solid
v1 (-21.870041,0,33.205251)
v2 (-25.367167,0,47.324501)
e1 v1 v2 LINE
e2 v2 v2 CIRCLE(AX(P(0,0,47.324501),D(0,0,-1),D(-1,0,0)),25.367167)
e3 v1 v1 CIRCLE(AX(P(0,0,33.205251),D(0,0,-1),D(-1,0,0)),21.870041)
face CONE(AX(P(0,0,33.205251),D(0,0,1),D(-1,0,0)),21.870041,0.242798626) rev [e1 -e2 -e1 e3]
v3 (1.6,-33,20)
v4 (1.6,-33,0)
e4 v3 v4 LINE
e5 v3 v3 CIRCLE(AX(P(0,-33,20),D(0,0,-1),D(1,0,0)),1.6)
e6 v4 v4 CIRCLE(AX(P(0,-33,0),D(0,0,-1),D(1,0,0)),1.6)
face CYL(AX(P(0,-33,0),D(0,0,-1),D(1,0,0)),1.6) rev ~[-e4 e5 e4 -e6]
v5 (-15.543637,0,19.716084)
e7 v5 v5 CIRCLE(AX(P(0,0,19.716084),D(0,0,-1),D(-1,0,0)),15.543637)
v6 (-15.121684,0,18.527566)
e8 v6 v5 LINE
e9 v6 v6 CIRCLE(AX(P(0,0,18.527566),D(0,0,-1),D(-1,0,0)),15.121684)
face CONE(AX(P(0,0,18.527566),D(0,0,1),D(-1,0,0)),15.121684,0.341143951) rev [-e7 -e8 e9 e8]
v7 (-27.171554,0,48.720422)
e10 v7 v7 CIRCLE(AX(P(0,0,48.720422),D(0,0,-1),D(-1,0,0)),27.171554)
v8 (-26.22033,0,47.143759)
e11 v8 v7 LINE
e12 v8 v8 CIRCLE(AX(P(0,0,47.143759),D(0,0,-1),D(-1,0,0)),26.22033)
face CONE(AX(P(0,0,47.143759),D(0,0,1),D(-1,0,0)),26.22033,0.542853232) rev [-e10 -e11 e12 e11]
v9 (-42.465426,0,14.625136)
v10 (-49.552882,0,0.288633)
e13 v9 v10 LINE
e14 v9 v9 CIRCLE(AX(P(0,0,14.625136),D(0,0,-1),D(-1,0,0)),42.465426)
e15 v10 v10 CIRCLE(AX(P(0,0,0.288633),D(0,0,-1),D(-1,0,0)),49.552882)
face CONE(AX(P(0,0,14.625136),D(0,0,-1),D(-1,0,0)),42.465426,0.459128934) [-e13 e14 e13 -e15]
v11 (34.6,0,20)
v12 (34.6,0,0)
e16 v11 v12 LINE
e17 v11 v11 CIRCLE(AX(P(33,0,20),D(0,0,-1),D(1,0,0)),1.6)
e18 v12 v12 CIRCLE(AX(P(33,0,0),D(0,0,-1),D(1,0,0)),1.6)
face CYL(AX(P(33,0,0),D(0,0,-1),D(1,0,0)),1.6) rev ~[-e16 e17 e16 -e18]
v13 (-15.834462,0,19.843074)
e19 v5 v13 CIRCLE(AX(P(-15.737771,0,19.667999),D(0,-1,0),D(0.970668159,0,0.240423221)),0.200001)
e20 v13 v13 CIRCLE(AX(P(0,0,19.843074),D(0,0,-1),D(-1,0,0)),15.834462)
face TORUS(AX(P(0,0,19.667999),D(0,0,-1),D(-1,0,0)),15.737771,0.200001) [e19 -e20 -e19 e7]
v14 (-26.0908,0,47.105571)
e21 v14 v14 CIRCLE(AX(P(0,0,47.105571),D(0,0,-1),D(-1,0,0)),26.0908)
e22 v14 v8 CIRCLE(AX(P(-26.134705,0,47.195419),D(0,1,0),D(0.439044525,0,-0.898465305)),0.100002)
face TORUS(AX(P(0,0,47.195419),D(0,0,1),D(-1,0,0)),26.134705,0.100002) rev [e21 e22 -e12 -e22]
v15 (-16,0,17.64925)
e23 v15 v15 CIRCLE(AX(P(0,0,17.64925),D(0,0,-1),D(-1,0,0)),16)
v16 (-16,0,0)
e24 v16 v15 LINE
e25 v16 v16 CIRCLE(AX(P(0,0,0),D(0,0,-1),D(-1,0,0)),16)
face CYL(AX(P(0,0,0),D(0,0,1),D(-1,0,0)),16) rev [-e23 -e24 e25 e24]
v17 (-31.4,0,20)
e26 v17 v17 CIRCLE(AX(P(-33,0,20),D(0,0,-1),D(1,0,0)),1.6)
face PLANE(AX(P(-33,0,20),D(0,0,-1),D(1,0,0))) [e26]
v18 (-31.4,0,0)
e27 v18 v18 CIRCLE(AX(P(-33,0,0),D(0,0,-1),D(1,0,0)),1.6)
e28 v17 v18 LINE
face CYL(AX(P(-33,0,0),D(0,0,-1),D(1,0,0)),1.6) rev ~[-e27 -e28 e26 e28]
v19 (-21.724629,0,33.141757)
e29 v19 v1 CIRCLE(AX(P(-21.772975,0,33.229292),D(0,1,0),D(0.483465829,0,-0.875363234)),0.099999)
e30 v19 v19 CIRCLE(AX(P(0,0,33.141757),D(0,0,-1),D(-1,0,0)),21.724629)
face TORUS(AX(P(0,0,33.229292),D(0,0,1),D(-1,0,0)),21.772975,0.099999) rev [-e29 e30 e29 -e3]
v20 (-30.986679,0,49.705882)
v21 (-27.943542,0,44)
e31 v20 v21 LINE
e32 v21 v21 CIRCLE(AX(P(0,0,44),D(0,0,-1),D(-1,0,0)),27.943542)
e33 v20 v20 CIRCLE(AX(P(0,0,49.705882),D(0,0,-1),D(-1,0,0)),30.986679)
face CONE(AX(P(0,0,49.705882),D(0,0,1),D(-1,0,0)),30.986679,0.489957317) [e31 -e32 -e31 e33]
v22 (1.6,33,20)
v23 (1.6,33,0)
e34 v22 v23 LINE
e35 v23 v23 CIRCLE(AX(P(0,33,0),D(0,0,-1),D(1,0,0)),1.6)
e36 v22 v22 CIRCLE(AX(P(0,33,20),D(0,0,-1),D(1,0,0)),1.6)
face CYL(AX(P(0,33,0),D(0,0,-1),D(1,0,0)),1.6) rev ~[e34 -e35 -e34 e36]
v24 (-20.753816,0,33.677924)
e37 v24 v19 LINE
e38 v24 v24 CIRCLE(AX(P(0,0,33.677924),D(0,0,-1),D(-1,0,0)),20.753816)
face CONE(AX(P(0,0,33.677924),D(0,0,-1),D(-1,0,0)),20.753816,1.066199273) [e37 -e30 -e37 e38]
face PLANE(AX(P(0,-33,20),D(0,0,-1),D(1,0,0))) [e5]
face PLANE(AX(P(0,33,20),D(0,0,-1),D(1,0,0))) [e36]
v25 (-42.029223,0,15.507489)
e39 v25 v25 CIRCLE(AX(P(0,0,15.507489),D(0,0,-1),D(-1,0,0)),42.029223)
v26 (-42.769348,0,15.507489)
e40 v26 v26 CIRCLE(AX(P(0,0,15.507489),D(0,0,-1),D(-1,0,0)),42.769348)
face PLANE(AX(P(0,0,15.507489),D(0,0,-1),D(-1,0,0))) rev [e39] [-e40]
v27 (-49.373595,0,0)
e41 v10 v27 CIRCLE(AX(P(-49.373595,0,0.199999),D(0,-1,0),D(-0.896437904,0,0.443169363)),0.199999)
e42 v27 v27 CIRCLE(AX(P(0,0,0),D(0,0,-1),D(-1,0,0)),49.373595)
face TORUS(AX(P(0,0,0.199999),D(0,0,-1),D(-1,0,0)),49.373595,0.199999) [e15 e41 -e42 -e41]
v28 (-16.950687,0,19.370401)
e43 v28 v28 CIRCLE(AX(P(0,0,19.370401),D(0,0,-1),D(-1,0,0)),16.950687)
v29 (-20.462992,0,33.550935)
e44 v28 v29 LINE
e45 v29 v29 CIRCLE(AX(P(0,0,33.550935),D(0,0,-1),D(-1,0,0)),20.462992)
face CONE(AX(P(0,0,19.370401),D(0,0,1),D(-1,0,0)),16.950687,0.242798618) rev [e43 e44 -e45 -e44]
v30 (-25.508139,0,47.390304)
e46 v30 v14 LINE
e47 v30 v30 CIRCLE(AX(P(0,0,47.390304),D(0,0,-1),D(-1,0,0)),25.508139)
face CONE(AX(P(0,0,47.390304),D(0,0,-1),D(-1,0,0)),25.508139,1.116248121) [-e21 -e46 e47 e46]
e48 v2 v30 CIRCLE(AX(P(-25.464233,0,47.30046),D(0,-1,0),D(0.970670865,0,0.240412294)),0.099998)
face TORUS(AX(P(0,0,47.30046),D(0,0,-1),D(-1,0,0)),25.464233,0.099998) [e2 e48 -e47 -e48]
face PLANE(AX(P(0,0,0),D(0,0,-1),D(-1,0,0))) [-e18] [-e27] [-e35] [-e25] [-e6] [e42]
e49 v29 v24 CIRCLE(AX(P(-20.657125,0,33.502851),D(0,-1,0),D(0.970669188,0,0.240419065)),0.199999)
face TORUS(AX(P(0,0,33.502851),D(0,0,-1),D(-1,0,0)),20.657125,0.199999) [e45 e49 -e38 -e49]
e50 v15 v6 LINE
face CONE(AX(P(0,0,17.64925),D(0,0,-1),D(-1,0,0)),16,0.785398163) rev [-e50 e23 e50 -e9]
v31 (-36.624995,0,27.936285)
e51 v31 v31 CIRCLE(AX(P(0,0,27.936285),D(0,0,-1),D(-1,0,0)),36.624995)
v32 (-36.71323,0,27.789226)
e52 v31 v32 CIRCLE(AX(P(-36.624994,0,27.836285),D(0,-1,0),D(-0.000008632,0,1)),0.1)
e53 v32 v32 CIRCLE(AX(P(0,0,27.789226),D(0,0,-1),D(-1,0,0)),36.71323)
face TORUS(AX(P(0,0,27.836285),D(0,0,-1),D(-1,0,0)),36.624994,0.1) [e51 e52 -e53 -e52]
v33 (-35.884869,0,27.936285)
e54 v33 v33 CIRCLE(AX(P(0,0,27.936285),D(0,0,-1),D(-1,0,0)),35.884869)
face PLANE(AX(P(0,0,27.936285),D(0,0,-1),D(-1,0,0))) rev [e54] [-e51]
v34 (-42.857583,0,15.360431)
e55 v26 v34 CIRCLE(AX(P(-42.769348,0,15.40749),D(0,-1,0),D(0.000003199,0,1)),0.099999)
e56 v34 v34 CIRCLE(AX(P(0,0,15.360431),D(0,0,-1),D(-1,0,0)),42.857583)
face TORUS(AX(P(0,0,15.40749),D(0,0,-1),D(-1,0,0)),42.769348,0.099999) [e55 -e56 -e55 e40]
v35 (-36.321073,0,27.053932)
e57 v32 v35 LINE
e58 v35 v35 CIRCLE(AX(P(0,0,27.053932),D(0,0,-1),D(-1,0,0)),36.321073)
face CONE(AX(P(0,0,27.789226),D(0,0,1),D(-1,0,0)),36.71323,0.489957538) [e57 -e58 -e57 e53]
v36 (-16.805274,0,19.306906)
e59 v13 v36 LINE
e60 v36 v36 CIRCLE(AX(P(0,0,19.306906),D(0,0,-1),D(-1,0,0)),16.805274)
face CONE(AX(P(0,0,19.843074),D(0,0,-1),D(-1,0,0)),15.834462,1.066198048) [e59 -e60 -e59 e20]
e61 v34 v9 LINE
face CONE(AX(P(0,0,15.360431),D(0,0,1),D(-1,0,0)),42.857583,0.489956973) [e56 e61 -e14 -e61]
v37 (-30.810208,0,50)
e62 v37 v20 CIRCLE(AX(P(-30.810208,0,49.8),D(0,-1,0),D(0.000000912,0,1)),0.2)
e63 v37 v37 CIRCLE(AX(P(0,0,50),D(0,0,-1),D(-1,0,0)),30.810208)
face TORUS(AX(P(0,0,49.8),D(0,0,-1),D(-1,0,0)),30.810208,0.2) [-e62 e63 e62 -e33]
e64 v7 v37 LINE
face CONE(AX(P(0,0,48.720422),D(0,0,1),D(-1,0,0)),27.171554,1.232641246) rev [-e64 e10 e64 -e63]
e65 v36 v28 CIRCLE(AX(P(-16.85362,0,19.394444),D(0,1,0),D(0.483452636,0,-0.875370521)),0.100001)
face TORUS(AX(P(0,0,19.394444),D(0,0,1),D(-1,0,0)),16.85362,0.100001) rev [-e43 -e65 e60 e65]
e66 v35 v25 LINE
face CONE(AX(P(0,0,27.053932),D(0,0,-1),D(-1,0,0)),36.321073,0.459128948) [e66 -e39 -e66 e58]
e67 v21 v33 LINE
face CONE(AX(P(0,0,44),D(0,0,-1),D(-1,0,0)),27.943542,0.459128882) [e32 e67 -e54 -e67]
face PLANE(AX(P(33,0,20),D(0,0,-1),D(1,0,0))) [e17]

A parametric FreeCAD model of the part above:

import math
import FreeCAD as App
import Part
import Sketcher
from FreeCAD import Vector
Q = App.Units.Quantity

doc = App.newDocument("Part")
body = doc.addObject("PartDesign::Body", "Body")

# Sketch on XZ plane
sketch1 = body.newObject("Sketcher::SketchObject", "Sketch")
sketch1.AttachmentSupport = (doc.getObject("XZ_Plane"), [""])
sketch1.MapMode = "FlatFace"
sketch1.addGeometry([
    Part.ArcOfCircle(Part.Circle(Vector(-30.810208, 49.8, 0), Vector(0, 0, 1), 0.2), math.radians(89.999948), math.radians(208.072482)),  # 0
    Part.LineSegment(Vector(-30.986679, 49.705882, 0), Vector(-27.943542, 44, 0)),  # 1
    Part.LineSegment(Vector(-27.943542, 44, 0), Vector(-35.884869, 27.936285, 0)),  # 2
    Part.LineSegment(Vector(-35.884869, 27.936285, 0), Vector(-36.624995, 27.936285, 0)),  # 3
    Part.ArcOfCircle(Part.Circle(Vector(-36.624994, 27.836285, 0), Vector(0, 0, 1), 0.1), math.radians(90.000494), math.radians(208.072222)),  # 4
    Part.LineSegment(Vector(-36.71323, 27.789226, 0), Vector(-36.321073, 27.053932, 0)),  # 5
    Part.LineSegment(Vector(-36.321073, 27.053932, 0), Vector(-42.029223, 15.507489, 0)),  # 6
    Part.LineSegment(Vector(-42.029223, 15.507489, 0), Vector(-42.769348, 15.507489, 0)),  # 7
    Part.ArcOfCircle(Part.Circle(Vector(-42.769348, 15.40749, 0), Vector(0, 0, 1), 0.099999), math.radians(89.999817), math.radians(208.072556)),  # 8
    Part.LineSegment(Vector(-42.857583, 15.360431, 0), Vector(-42.465426, 14.625136, 0)),  # 9
    Part.LineSegment(Vector(-42.465426, 14.625136, 0), Vector(-49.552882, 0.288633, 0)),  # 10
    Part.ArcOfCircle(Part.Circle(Vector(-49.373595, 0.199999, 0), Vector(0, 0, 1), 0.199999), math.radians(153.693725), math.radians(269.999989)),  # 11
    Part.LineSegment(Vector(-49.373595, 0, 0), Vector(-16, 0, 0)),  # 12
    Part.LineSegment(Vector(-16, 0, 0), Vector(-16, 17.64925, 0)),  # 13
    Part.LineSegment(Vector(-16, 17.64925, 0), Vector(-15.121684, 18.527566, 0)),  # 14
    Part.LineSegment(Vector(-15.121684, 18.527566, 0), Vector(-15.543637, 19.716084, 0)),  # 15
    Part.ArcOfCircle(Part.Circle(Vector(-15.737771, 19.667999, 0), Vector(0, 0, 1), 0.200001), math.radians(13.91152), math.radians(118.911086)),  # 16
    Part.LineSegment(Vector(-15.834462, 19.843074, 0), Vector(-16.805274, 19.306906, 0)),  # 17
    Part.ArcOfCircle(Part.Circle(Vector(-16.85362, 19.394444, 0), Vector(0, 0, 1), 0.100001), math.radians(-166.088392), math.radians(-61.088857)),  # 18
    Part.LineSegment(Vector(-16.950687, 19.370401, 0), Vector(-20.462992, 33.550935, 0)),  # 19
    Part.ArcOfCircle(Part.Circle(Vector(-20.657125, 33.502851, 0), Vector(0, 0, 1), 0.199999), math.radians(13.911275), math.radians(118.911518)),  # 20
    Part.LineSegment(Vector(-20.753816, 33.677924, 0), Vector(-21.724629, 33.141757, 0)),  # 21
    Part.ArcOfCircle(Part.Circle(Vector(-21.772975, 33.229292, 0), Vector(0, 0, 1), 0.099999), math.radians(-166.088883), math.radians(-61.087993)),  # 22
    Part.LineSegment(Vector(-21.870041, 33.205251, 0), Vector(-25.367167, 47.324501, 0)),  # 23
    Part.ArcOfCircle(Part.Circle(Vector(-25.464233, 47.30046, 0), Vector(0, 0, 1), 0.099998), math.radians(13.910876), math.radians(116.044613)),  # 24
    Part.LineSegment(Vector(-25.508139, 47.390304, 0), Vector(-26.0908, 47.105571, 0)),  # 25
    Part.ArcOfCircle(Part.Circle(Vector(-26.134705, 47.195419, 0), Vector(0, 0, 1), 0.100002), math.radians(-148.896048), math.radians(-63.957066)),  # 26
    Part.LineSegment(Vector(-26.22033, 47.143759, 0), Vector(-27.171554, 48.720422, 0)),  # 27
    Part.LineSegment(Vector(-27.171554, 48.720422, 0), Vector(-30.810208, 50, 0)),  # 28
], False)
sketch1.addConstraint([
    Sketcher.Constraint("Coincident", 0, 2, 1, 1),
    Sketcher.Constraint("Coincident", 1, 2, 2, 1),
    Sketcher.Constraint("Coincident", 2, 2, 3, 1),
    Sketcher.Constraint("Coincident", 3, 2, 4, 1),
    Sketcher.Constraint("Coincident", 4, 2, 5, 1),
    Sketcher.Constraint("Coincident", 5, 2, 6, 1),
    Sketcher.Constraint("Coincident", 6, 2, 7, 1),
    Sketcher.Constraint("Coincident", 7, 2, 8, 1),
    Sketcher.Constraint("Coincident", 8, 2, 9, 1),
    Sketcher.Constraint("Coincident", 9, 2, 10, 1),
    Sketcher.Constraint("Coincident", 10, 2, 11, 1),
    Sketcher.Constraint("Coincident", 11, 2, 12, 1),
    Sketcher.Constraint("Coincident", 12, 2, 13, 1),
    Sketcher.Constraint("Coincident", 13, 2, 14, 1),
    Sketcher.Constraint("Coincident", 14, 2, 15, 1),
    Sketcher.Constraint("Coincident", 15, 2, 16, 1),
    Sketcher.Constraint("Coincident", 16, 2, 17, 1),
    Sketcher.Constraint("Coincident", 17, 2, 18, 2),
    Sketcher.Constraint("Coincident", 18, 1, 19, 1),
    Sketcher.Constraint("Coincident", 19, 2, 20, 1),
    Sketcher.Constraint("Coincident", 20, 2, 21, 1),
    Sketcher.Constraint("Coincident", 21, 2, 22, 2),
    Sketcher.Constraint("Coincident", 22, 1, 23, 1),
    Sketcher.Constraint("Coincident", 23, 2, 24, 1),
    Sketcher.Constraint("Coincident", 24, 2, 25, 1),
    Sketcher.Constraint("Coincident", 25, 2, 26, 2),
    Sketcher.Constraint("Coincident", 26, 1, 27, 1),
    Sketcher.Constraint("Coincident", 27, 2, 28, 1),
    Sketcher.Constraint("Coincident", 28, 2, 0, 1),
    Sketcher.Constraint("Horizontal", 3),
    Sketcher.Constraint("Horizontal", 7),
    Sketcher.Constraint("Horizontal", 12),
    Sketcher.Constraint("Vertical", 13),
    Sketcher.Constraint("PointOnObject", 11, 2, -1),
    Sketcher.Constraint("Radius", 0, Q("0.2 mm")),
    Sketcher.Constraint("Radius", 4, Q("0.1 mm")),
    Sketcher.Constraint("Radius", 8, Q("0.099999 mm")),
    Sketcher.Constraint("Radius", 11, Q("0.199999 mm")),
    Sketcher.Constraint("Radius", 16, Q("0.200001 mm")),
    Sketcher.Constraint("Radius", 18, Q("0.100001 mm")),
    Sketcher.Constraint("Radius", 20, Q("0.199999 mm")),
    Sketcher.Constraint("Radius", 22, Q("0.099999 mm")),
    Sketcher.Constraint("Radius", 24, Q("0.099998 mm")),
    Sketcher.Constraint("Radius", 26, Q("0.100002 mm")),
    Sketcher.Constraint("DistanceY", -1, 1, 1, 2, Q("44 mm")),
    Sketcher.Constraint("DistanceX", 12, 2, -1, 1, Q("16 mm")),
    Sketcher.Constraint("DistanceY", -1, 1, 28, 2, Q("50 mm")),
    Sketcher.Constraint("DistanceY", -1, 1, 16, 3, Q("19.667999 mm")),
    Sketcher.Constraint("DistanceY", 13, 1, 13, 2, Q("17.64925 mm")),
    Sketcher.Constraint("DistanceY", -1, 1, 18, 1, Q("19.370401 mm")),
    Sketcher.Constraint("DistanceY", -1, 1, 23, 2, Q("47.324501 mm")),
    Sketcher.Constraint("DistanceX", 25, 2, -1, 1, Q("26.0908 mm")),
    Sketcher.Constraint("DistanceX", 11, 3, 4, 3, Q("12.748601 mm")),
    Sketcher.Constraint("DistanceY", 8, 2, 5, 2, Q("11.693501 mm")),
    Sketcher.Constraint("DistanceX", 10, 2, 8, 2, Q("6.695299 mm")),
    Sketcher.Constraint("DistanceY", 10, 2, 8, 2, Q("15.071798 mm")),
    Sketcher.Constraint("DistanceY", 13, 2, 20, 3, Q("15.853601 mm")),
    Sketcher.Constraint("DistanceY", 22, 1, 20, 3, Q("0.2976 mm")),
    Sketcher.Constraint("DistanceY", 26, 1, 24, 3, Q("0.156701 mm")),
    Sketcher.Constraint("Distance", 10, Q("15.992728 mm")),
    Sketcher.Constraint("Distance", 25, Q("0.648511 mm")),
    Sketcher.Constraint("DistanceX", 3, 2, 3, 1, Q("0.740126 mm")),
    Sketcher.Constraint("DistanceX", 7, 2, 7, 1, Q("0.740125 mm")),
    Sketcher.Constraint("DistanceX", 12, 1, 12, 2, Q("33.373595 mm")),
    Sketcher.Constraint("DistanceX", 0, 3, -1, 1, Q("30.810208 mm")),
    Sketcher.Constraint("DistanceX", 8, 3, -1, 1, Q("42.769348 mm")),
    Sketcher.Constraint("DistanceY", -1, 1, 8, 3, Q("15.40749 mm")),
    Sketcher.Constraint("DistanceX", 16, 3, -1, 1, Q("15.737771 mm")),
    Sketcher.Constraint("DistanceX", 18, 3, -1, 1, Q("16.85362 mm")),
    Sketcher.Constraint("DistanceY", -1, 1, 24, 3, Q("47.30046 mm")),
    Sketcher.Constraint("DistanceY", -1, 1, 26, 3, Q("47.195419 mm")),
    Sketcher.Constraint("DistanceX", 0, 2, -1, 1, Q("30.986679 mm")),
    Sketcher.Constraint("DistanceX", 2, 2, -1, 1, Q("35.884869 mm")),
    Sketcher.Constraint("DistanceX", 4, 2, -1, 1, Q("36.71323 mm")),
    Sketcher.Constraint("DistanceY", -1, 1, 5, 2, Q("27.053932 mm")),
    Sketcher.Constraint("DistanceX", 19, 2, -1, 1, Q("20.462992 mm")),
    Sketcher.Constraint("DistanceX", 21, 2, -1, 1, Q("21.724629 mm")),
    Sketcher.Constraint("DistanceX", 22, 1, -1, 1, Q("21.870041 mm")),
    Sketcher.Constraint("DistanceX", 24, 2, -1, 1, Q("25.508139 mm")),
    Sketcher.Constraint("DistanceY", -1, 1, 25, 2, Q("47.105571 mm")),
    Sketcher.Constraint("DistanceY", 18, 3, 4, 3, Q("8.441841 mm")),
    Sketcher.Constraint("DistanceX", 4, 3, 20, 3, Q("15.967869 mm")),
    Sketcher.Constraint("DistanceX", 22, 3, 20, 3, Q("1.11585 mm")),
    Sketcher.Constraint("DistanceY", 18, 3, 22, 3, Q("13.834849 mm")),
    Sketcher.Constraint("DistanceX", 1, 2, 24, 3, Q("2.479309 mm")),
    Sketcher.Constraint("DistanceX", 4, 3, 5, 2, Q("0.303921 mm")),
    Sketcher.Constraint("DistanceX", 6, 2, 5, 2, Q("5.70815 mm")),
    Sketcher.Constraint("DistanceX", 11, 2, 9, 2, Q("6.908169 mm")),
    Sketcher.Constraint("DistanceX", 20, 3, 14, 2, Q("5.535441 mm")),
    Sketcher.Constraint("DistanceY", 18, 3, 15, 2, Q("0.32164 mm")),
    Sketcher.Constraint("DistanceX", 16, 2, 16, 3, Q("0.096691 mm")),
    Sketcher.Constraint("DistanceY", 14, 2, 16, 2, Q("1.315508 mm")),
    Sketcher.Constraint("DistanceX", 17, 2, 16, 2, Q("0.970812 mm")),
    Sketcher.Constraint("DistanceX", 20, 2, 20, 3, Q("0.096691 mm")),
    Sketcher.Constraint("DistanceX", 27, 2, 26, 3, Q("1.036849 mm")),
    Sketcher.Constraint("DistanceY", 25, 2, 27, 2, Q("1.614851 mm")),
    Sketcher.Constraint("DistanceX", 0, 2, 28, 2, Q("0.176471 mm")),
])
revolution = body.newObject("PartDesign::Revolution", "Revolution")
revolution.Profile = sketch1
revolution.ReferenceAxis = (sketch1, ["V_Axis"])
revolution.Angle = 360

# Sketch on XY plane
sketch2 = body.newObject("Sketcher::SketchObject", "Sketch001")
sketch2.AttachmentSupport = (doc.getObject("XY_Plane"), [""])
sketch2.MapMode = "FlatFace"
sketch2.addGeometry([
    Part.Circle(Vector(33, 0, 0), Vector(0, 0, 1), 1.6),
    Part.Circle(Vector(0, 33, 0), Vector(0, 0, 1), 1.6),
    Part.Circle(Vector(0, -33, 0), Vector(0, 0, 1), 1.6),
    Part.Circle(Vector(-33, 0, 0), Vector(0, 0, 1), 1.6),
], False)
sketch2.addConstraint([
    Sketcher.Constraint("Equal", 0, 1),
    Sketcher.Constraint("Equal", 1, 2),
    Sketcher.Constraint("Equal", 2, 3),
    Sketcher.Constraint("Symmetric", 1, 3, 2, 3, -1, 1),
    Sketcher.Constraint("Symmetric", 0, 3, 3, 3, -1, 1),
    Sketcher.Constraint("PointOnObject", 0, 3, -1),
    Sketcher.Constraint("PointOnObject", 1, 3, -2),
    Sketcher.Constraint("Diameter", 0, Q("3.2 mm")),
    Sketcher.Constraint("DistanceX", -1, 1, 0, 3, Q("33 mm")),
    Sketcher.Constraint("DistanceY", -1, 1, 1, 3, Q("33 mm")),
])
pocket1 = body.newObject("PartDesign::Pocket", "Pocket")
pocket1.Profile = sketch2
pocket1.Length = 20
pocket1.Reversed = True

# Sketch on XY plane
sketch3 = body.newObject("Sketcher::SketchObject", "Sketch002")
sketch3.AttachmentSupport = (doc.getObject("XY_Plane"), [""])
sketch3.MapMode = "FlatFace"
sketch3.addGeometry([
    Part.Circle(Vector(33, 0, 0), Vector(0, 0, 1), 1.6),
    Part.Circle(Vector(0, -33, 0), Vector(0, 0, 1), 1.6),
    Part.Circle(Vector(0, 33, 0), Vector(0, 0, 1), 1.6),
    Part.Circle(Vector(-33, 0, 0), Vector(0, 0, 1), 1.6),
], False)
sketch3.addConstraint([
    Sketcher.Constraint("Equal", 0, 1),
    Sketcher.Constraint("Equal", 1, 2),
    Sketcher.Constraint("Equal", 2, 3),
    Sketcher.Constraint("Symmetric", 1, 3, 2, 3, -1, 1),
    Sketcher.Constraint("Symmetric", 0, 3, 3, 3, -1, 1),
    Sketcher.Constraint("PointOnObject", 0, 3, -1),
    Sketcher.Constraint("PointOnObject", 1, 3, -2),
    Sketcher.Constraint("Diameter", 0, Q("3.2 mm")),
    Sketcher.Constraint("DistanceX", -1, 1, 0, 3, Q("33 mm")),
    Sketcher.Constraint("DistanceY", 1, 3, -1, 1, Q("33 mm")),
])
pocket2 = body.newObject("PartDesign::Pocket", "Pocket001")
pocket2.Profile = sketch3
pocket2.Length = 1
pocket2.Reversed = True

doc.recompute()
